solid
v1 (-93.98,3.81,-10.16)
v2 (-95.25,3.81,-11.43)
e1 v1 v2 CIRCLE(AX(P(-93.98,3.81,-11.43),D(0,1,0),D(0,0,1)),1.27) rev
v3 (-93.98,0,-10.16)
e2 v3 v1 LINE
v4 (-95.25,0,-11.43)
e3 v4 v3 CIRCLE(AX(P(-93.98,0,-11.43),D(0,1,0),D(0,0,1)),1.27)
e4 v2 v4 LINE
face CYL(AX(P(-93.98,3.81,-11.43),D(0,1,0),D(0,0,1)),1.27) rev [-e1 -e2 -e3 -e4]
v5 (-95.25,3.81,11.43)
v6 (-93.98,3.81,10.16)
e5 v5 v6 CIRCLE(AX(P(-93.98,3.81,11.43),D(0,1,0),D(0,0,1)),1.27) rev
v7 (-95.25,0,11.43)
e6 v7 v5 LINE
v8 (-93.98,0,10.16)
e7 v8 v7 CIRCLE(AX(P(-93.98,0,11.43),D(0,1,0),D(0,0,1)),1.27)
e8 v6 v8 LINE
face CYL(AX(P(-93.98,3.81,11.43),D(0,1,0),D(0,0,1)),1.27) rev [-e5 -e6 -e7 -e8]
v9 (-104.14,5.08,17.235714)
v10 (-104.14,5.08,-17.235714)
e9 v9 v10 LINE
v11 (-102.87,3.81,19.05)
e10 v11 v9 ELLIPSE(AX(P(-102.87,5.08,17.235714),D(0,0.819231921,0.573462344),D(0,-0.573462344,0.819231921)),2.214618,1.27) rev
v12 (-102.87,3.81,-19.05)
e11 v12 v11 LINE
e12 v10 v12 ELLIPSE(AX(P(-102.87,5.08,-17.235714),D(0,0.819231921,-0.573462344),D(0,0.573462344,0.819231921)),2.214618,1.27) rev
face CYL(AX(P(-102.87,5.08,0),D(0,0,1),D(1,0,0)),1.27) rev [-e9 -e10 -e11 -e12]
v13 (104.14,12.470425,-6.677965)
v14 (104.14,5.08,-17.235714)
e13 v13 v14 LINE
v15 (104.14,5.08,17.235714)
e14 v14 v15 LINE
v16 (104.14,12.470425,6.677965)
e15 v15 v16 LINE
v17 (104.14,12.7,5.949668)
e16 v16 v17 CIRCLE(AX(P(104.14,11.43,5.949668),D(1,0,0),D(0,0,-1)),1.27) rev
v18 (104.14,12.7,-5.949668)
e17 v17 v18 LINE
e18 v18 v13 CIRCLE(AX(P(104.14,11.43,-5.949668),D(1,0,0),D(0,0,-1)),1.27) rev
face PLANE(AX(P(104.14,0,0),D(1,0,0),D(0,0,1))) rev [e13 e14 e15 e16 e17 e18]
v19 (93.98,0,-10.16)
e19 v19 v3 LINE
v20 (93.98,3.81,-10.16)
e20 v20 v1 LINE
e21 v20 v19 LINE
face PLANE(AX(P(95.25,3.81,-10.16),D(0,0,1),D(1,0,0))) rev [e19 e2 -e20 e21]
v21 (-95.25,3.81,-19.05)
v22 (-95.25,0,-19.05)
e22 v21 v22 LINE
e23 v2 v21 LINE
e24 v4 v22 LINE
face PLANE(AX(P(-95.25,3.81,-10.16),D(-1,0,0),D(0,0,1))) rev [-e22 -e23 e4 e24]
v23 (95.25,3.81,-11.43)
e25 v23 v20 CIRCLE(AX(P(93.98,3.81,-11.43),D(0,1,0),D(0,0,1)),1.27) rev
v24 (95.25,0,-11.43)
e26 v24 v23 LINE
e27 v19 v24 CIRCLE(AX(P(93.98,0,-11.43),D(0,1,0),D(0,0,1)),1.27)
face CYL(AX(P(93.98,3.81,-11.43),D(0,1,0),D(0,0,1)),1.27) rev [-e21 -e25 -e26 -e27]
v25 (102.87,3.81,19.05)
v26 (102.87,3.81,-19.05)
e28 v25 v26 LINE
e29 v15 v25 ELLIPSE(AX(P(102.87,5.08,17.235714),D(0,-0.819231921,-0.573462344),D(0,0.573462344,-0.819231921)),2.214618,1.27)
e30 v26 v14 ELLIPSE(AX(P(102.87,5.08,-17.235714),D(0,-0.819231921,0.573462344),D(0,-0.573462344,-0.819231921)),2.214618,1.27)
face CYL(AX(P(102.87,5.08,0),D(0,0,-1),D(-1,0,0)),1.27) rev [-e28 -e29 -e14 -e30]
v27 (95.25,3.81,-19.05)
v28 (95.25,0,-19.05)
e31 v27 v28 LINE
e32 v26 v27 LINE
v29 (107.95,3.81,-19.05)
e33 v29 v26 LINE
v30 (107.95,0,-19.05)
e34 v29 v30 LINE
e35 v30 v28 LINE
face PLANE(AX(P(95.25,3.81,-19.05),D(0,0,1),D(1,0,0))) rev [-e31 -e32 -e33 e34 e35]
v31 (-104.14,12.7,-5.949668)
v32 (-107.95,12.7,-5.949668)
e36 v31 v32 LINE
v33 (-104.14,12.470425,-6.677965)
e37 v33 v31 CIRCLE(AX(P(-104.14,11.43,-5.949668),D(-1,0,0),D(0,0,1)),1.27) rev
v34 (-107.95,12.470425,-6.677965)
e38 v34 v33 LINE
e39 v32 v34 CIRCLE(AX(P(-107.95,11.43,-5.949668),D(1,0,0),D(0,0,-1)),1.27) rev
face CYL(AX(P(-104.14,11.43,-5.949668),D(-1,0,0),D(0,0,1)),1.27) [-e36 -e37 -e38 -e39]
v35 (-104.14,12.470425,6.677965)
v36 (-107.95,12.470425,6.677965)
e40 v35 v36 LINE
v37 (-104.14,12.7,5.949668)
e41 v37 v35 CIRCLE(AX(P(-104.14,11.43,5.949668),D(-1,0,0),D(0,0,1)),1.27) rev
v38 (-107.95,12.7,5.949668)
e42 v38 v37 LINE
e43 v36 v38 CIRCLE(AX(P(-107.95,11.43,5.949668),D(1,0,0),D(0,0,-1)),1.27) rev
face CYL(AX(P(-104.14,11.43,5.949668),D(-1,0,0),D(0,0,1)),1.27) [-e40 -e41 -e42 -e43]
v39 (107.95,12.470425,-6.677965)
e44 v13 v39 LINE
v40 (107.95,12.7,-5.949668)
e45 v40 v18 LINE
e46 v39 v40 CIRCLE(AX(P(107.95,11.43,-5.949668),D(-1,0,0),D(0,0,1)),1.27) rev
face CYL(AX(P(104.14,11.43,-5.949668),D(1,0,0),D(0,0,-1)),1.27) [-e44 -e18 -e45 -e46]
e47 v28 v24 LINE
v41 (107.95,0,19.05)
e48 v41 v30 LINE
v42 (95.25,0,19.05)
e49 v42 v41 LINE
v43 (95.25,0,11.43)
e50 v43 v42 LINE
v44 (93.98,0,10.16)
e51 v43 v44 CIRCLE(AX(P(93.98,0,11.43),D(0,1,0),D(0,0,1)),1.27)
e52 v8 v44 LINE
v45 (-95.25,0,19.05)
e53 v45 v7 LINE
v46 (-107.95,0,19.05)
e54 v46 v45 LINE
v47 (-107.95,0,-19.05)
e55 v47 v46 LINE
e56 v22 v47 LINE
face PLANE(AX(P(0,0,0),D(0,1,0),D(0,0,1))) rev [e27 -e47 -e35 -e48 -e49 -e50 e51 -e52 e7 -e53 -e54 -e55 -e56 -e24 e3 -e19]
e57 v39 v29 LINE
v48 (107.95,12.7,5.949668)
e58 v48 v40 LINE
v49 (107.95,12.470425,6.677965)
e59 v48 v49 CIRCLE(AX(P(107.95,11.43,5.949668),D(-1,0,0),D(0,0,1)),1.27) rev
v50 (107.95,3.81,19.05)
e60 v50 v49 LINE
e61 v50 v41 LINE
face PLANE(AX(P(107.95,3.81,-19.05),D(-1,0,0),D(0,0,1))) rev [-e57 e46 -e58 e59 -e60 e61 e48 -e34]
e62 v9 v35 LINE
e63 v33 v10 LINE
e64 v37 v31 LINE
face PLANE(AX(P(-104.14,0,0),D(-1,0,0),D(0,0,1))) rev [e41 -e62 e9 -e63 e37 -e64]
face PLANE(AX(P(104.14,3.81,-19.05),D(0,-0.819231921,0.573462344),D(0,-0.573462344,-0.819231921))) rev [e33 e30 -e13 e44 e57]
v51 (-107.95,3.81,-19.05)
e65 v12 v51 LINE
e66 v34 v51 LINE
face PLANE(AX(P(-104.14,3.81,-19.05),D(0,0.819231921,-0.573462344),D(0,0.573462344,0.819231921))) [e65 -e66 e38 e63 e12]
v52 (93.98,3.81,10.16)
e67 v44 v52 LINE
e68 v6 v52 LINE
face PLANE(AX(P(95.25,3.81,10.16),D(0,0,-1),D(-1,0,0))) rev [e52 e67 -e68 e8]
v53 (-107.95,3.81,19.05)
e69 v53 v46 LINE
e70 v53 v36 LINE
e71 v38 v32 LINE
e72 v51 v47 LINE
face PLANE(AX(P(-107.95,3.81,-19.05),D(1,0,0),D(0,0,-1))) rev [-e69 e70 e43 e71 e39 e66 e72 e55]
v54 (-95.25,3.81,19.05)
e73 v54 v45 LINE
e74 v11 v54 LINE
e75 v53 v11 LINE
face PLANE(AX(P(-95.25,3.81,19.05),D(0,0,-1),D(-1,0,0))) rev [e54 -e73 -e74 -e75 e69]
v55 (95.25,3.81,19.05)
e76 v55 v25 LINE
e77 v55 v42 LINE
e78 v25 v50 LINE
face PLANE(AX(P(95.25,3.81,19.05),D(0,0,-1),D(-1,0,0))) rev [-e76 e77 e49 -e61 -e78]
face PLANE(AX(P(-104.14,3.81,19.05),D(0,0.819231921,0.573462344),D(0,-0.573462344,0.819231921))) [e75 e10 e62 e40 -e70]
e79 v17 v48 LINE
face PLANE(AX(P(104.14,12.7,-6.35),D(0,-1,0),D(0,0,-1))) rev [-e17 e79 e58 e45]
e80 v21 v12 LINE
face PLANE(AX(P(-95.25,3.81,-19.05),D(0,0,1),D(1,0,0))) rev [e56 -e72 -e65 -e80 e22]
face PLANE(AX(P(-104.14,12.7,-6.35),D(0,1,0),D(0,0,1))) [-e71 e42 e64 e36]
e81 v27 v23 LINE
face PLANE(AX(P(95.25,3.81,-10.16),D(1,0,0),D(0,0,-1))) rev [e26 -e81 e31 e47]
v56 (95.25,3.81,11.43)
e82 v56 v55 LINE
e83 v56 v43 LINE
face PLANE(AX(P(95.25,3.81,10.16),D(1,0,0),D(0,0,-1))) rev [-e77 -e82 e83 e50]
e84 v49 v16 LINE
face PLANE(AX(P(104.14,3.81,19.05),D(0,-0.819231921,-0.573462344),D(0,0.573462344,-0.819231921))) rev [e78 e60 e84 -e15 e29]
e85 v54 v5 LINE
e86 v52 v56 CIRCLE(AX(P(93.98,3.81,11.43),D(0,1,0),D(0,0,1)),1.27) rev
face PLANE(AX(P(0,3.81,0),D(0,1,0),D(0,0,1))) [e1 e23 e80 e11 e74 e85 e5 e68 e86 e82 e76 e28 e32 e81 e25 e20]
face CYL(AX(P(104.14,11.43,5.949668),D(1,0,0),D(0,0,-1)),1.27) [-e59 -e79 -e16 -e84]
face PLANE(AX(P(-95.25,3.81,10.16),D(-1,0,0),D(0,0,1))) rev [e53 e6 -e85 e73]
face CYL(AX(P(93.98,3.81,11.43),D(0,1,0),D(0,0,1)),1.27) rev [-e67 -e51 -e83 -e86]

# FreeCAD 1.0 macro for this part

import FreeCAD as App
import Part
import Sketcher
Q = App.Units.Quantity


def edges_at(feature, points):
    """Names of the edges that pass closest to the given points."""
    edges = feature.Shape.Edges
    near = lambda p: min(range(len(edges)), key=lambda i: edges[i].distToShape(Part.Vertex(*p))[0])
    return sorted({f"Edge{near(p) + 1}" for p in points})


def add_polygon(sketch, points):
    """Adds a closed chain of lines whose ends are joined by coincident constraints."""
    first, n = sketch.GeometryCount, len(points)
    for a, b in zip(points, points[1:] + points[:1]):
        sketch.addGeometry(Part.LineSegment(App.Vector(*a, 0), App.Vector(*b, 0)), False)
    for i in range(n):
        sketch.addConstraint(Sketcher.Constraint("Coincident", first + i, 2, first + (i + 1) % n, 1))

doc = App.newDocument("Part")
body = doc.addObject("PartDesign::Body", "Body")

# Sketch on XZ plane
sketch1 = doc.addObject("Sketcher::SketchObject", "Sketch")
body.addObject(sketch1)
sketch1.AttachmentSupport = (doc.XZ_Plane, [""])
sketch1.MapMode = "FlatFace"
add_polygon(sketch1, [(95.25, -10.16), (-95.25, -10.16), (-95.25, -19.05), (-107.95, -19.05), (-107.95, 19.05), (-95.25, 19.05), (-95.25, 10.16), (95.25, 10.16), (95.25, 19.05), (107.95, 19.05), (107.95, -19.05), (95.25, -19.05)])  # lines 0-11
sketch1.addConstraint([
    Sketcher.Constraint("Horizontal", 0),
    Sketcher.Constraint("Vertical", 1),
    Sketcher.Constraint("Horizontal", 2),
    Sketcher.Constraint("Vertical", 3),
    Sketcher.Constraint("Horizontal", 4),
    Sketcher.Constraint("Vertical", 5),
    Sketcher.Constraint("Horizontal", 6),
    Sketcher.Constraint("Vertical", 7),
    Sketcher.Constraint("Horizontal", 8),
    Sketcher.Constraint("Vertical", 9),
    Sketcher.Constraint("Horizontal", 10),
    Sketcher.Constraint("Vertical", 11),
    Sketcher.Constraint("Symmetric", 0, 2, 6, 2, -1, 1),
    Sketcher.Constraint("Symmetric", 2, 2, 8, 2, -1, 1),
    Sketcher.Constraint("Symmetric", 4, 2, 10, 2, -1, 1),
    Sketcher.Constraint("Symmetric", 4, 2, 7, 2, -2),
    Sketcher.Constraint("DistanceX", 0, 2, 0, 1, Q("7.5 in")),
    Sketcher.Constraint("DistanceX", 2, 2, 2, 1, Q("0.5 in")),
    Sketcher.Constraint("DistanceY", 3, 1, 3, 2, Q("1.5 in")),
    Sketcher.Constraint("DistanceY", 1, 2, 1, 1, Q("0.35 in")),
])
pad1 = doc.addObject("PartDesign::Pad", "Pad")
body.addObject(pad1)
pad1.Profile = sketch1
pad1.Length = Q("0.15 in")
pad1.Reversed = True

# Sketch on YZ plane
sketch2 = doc.addObject("Sketcher::SketchObject", "Sketch001")
body.addObject(sketch2)
sketch2.AttachmentSupport = (doc.YZ_Plane, [""])
sketch2.MapMode = "FlatFace"
sketch2.AttachmentOffset = App.Placement(App.Vector(0, 0, -4.25 * 25.4), App.Rotation())
add_polygon(sketch2, [(3.81, -19.05), (0, -19.05), (0, 19.05), (3.81, 19.05), (12.7, 6.35), (12.7, -6.35)])  # lines 0-5
sketch2.addConstraint([
    Sketcher.Constraint("Horizontal", 0),
    Sketcher.Constraint("Vertical", 1),
    Sketcher.Constraint("Horizontal", 2),
    Sketcher.Constraint("Vertical", 4),
    Sketcher.Constraint("Symmetric", 0, 2, 1, 2, -1, 1),
    Sketcher.Constraint("Vertical", 2, 2, 5, 2),
    Sketcher.Constraint("Equal", 3, 5),
    Sketcher.Constraint("DistanceY", 1, 1, 1, 2, Q("1.5 in")),
    Sketcher.Constraint("DistanceY", 4, 2, 4, 1, Q("0.5 in")),
    Sketcher.Constraint("DistanceX", 0, 2, 0, 1, Q("0.15 in")),
    Sketcher.Constraint("DistanceX", -1, 1, 3, 2, Q("0.5 in")),
])
pad2 = doc.addObject("PartDesign::Pad", "Pad001")
body.addObject(pad2)
pad2.Profile = sketch2
pad2.Length = Q("0.15 in")
doc.recompute()

mirrored = doc.addObject("PartDesign::Mirrored", "Mirrored")
body.addObject(mirrored)
mirrored.Originals = [pad2]
mirrored.MirrorPlane = (doc.YZ_Plane, [""])
body.Tip = mirrored
doc.recompute()

fillet = doc.addObject("PartDesign::Fillet", "Fillet")
body.addObject(fillet)
fillet.Base = (mirrored, edges_at(mirrored, [
    (-104.14, 3.81, 0),
    (-106.045, 12.7, -6.35),
    (-106.045, 12.7, 6.35),
    (104.14, 3.81, 0),
    (106.045, 12.7, 6.35),
    (106.045, 12.7, -6.35),
]))
fillet.Radius = Q("0.05 in")
doc.recompute()

fillet2 = doc.addObject("PartDesign::Fillet", "Fillet001")
body.addObject(fillet2)
fillet2.Base = (fillet, edges_at(fillet, [
    (-95.25, 1.905, -10.16),
    (95.25, 1.905, -10.16),
    (95.25, 1.905, 10.16),
    (-95.25, 1.905, 10.16),
]))
fillet2.Radius = Q("0.05 in")

doc.recompute()
